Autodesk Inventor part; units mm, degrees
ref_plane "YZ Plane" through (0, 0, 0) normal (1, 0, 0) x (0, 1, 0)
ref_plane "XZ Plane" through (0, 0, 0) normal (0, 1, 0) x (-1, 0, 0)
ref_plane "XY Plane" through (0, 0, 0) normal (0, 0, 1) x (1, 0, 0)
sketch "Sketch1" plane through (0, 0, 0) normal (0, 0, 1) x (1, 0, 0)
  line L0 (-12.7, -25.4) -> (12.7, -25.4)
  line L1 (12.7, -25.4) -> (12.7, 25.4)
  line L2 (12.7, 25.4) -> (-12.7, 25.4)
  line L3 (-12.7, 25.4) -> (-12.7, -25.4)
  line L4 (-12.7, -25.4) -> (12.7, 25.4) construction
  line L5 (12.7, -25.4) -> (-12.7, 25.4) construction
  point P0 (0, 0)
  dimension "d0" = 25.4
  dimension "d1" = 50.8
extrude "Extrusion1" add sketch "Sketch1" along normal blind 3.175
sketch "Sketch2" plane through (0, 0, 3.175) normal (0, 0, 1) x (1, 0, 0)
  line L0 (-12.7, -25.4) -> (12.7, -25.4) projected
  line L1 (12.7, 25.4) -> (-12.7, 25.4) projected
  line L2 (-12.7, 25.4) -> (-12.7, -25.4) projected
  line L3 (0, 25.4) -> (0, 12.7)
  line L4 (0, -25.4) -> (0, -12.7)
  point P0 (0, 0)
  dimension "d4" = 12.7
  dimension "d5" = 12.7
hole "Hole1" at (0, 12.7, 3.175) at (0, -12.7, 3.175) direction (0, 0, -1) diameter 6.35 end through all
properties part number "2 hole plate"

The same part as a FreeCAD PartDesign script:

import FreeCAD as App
import Part
import Sketcher
Q = App.Units.Quantity


def add_polygon(sketch, points):
    """Adds a closed chain of lines whose ends are joined by coincident constraints."""
    first, n = sketch.GeometryCount, len(points)
    for a, b in zip(points, points[1:] + points[:1]):
        sketch.addGeometry(Part.LineSegment(App.Vector(*a, 0), App.Vector(*b, 0)), False)
    for i in range(n):
        sketch.addConstraint(Sketcher.Constraint("Coincident", first + i, 2, first + (i + 1) % n, 1))

doc = App.newDocument("Part")
body = doc.addObject("PartDesign::Body", "Body")

# Sketch on XY plane
sketch1 = body.newObject("Sketcher::SketchObject", "Sketch")
sketch1.AttachmentSupport = (doc.getObject("XY_Plane"), [""])
sketch1.MapMode = "FlatFace"
add_polygon(sketch1, [(-13, 25), (-13, -25), (13, -25), (13, 25)])  # lines 0-3
sketch1.addConstraint([
    Sketcher.Constraint("Vertical", 0),
    Sketcher.Constraint("Horizontal", 1),
    Sketcher.Constraint("Vertical", 2),
    Sketcher.Constraint("Horizontal", 3),
    Sketcher.Constraint("Symmetric", 0, 2, 2, 2, -1, 1),
    Sketcher.Constraint("DistanceX", 1, 1, 1, 2, Q("1 in")),
    Sketcher.Constraint("DistanceY", 0, 2, 0, 1, Q("2 in")),
])
pad1 = body.newObject("PartDesign::Pad", "Pad")
pad1.Profile = sketch1
pad1.Length = Q("0.125 in")

# Sketch on XY plane
sketch2 = body.newObject("Sketcher::SketchObject", "Sketch001")
sketch2.AttachmentSupport = (doc.getObject("XY_Plane"), [""])
sketch2.MapMode = "FlatFace"
sketch2.AttachmentOffset = App.Placement(App.Vector(0, 0, 0.125 * 25.4), App.Rotation())
sketch2.addGeometry([
    Part.Circle(App.Vector(0, 12.7, 0), App.Vector(0, 0, 1), 3.2),
    Part.Circle(App.Vector(0, -12.7, 0), App.Vector(0, 0, 1), 3.2),
], False)
sketch2.addConstraint([
    Sketcher.Constraint("Equal", 0, 1),
    Sketcher.Constraint("Symmetric", 0, 3, 1, 3, -1, 1),
    Sketcher.Constraint("PointOnObject", 0, 3, -2),
    Sketcher.Constraint("Diameter", 0, Q("0.25 in")),
    Sketcher.Constraint("DistanceY", 1, 3, 0, 3, Q("1 in")),
])
doc.recompute()
hole = body.newObject("PartDesign::Hole", "Hole")
hole.Profile = sketch2
hole.ThreadType = "None"
hole.Diameter = Q("0.25 in")
hole.DepthType = "ThroughAll"

doc.recompute()
